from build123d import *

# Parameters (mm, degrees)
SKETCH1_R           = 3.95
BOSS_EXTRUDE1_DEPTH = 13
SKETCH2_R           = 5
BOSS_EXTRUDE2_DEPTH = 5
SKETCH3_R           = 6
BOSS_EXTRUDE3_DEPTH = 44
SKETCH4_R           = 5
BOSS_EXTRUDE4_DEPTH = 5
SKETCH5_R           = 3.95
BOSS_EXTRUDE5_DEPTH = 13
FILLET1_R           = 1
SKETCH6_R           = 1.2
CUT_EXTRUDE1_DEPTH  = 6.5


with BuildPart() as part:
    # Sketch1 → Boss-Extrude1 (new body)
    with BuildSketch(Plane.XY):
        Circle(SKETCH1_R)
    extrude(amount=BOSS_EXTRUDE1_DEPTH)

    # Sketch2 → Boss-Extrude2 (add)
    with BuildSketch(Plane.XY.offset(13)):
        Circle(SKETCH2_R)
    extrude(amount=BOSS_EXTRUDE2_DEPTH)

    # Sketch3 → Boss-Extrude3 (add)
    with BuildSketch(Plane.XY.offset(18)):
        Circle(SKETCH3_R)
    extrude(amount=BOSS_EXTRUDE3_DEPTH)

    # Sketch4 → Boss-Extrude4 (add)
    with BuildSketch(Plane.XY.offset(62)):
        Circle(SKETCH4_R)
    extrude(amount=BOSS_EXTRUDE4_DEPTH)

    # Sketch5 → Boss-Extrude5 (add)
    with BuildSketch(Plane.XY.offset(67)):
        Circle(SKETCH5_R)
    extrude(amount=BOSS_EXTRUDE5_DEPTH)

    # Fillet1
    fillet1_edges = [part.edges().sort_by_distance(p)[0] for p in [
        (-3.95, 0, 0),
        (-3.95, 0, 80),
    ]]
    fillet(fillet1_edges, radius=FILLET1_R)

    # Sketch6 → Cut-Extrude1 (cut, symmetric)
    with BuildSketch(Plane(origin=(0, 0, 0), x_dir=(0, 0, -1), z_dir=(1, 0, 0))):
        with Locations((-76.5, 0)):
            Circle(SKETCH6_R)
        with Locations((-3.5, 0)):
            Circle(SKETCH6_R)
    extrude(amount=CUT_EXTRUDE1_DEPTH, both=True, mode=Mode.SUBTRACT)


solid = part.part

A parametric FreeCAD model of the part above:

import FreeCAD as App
import Part
import Sketcher
Q = App.Units.Quantity


def edges_at(feature, points):
    """Names of the edges that pass closest to the given points."""
    edges = feature.Shape.Edges
    near = lambda p: min(range(len(edges)), key=lambda i: edges[i].distToShape(Part.Vertex(*p))[0])
    return sorted({f"Edge{near(p) + 1}" for p in points})

doc = App.newDocument("Part")
body = doc.addObject("PartDesign::Body", "Body")

sketch1 = doc.addObject("Sketcher::SketchObject", "Sketch")
body.addObject(sketch1)
sketch1.AttachmentSupport = (doc.XY_Plane, [""])
sketch1.MapMode = "FlatFace"
sketch1.addGeometry(Part.Circle(App.Vector(0, 0, 0), App.Vector(0, 0, 1), 4), False)
sketch1.addConstraint(Sketcher.Constraint("Coincident", 0, 3, -1, 1))
sketch1.addConstraint(Sketcher.Constraint("Diameter", 0, Q("7.9 mm")))
pad1 = doc.addObject("PartDesign::Pad", "Pad")
body.addObject(pad1)
pad1.Profile = sketch1
pad1.Length = 13

sketch2 = doc.addObject("Sketcher::SketchObject", "Sketch001")
body.addObject(sketch2)
sketch2.AttachmentSupport = (doc.XY_Plane, [""])
sketch2.MapMode = "FlatFace"
sketch2.AttachmentOffset = App.Placement(App.Vector(0, 0, 13), App.Rotation())
sketch2.addGeometry(Part.Circle(App.Vector(0, 0, 0), App.Vector(0, 0, 1), 5), False)
sketch2.addConstraint(Sketcher.Constraint("Coincident", 0, 3, -1, 1))
sketch2.addConstraint(Sketcher.Constraint("Diameter", 0, Q("10 mm")))
pad2 = doc.addObject("PartDesign::Pad", "Pad001")
body.addObject(pad2)
pad2.Profile = sketch2
pad2.Length = 5

sketch3 = doc.addObject("Sketcher::SketchObject", "Sketch002")
body.addObject(sketch3)
sketch3.AttachmentSupport = (doc.XY_Plane, [""])
sketch3.MapMode = "FlatFace"
sketch3.AttachmentOffset = App.Placement(App.Vector(0, 0, 18), App.Rotation())
sketch3.addGeometry(Part.Circle(App.Vector(0, 0, 0), App.Vector(0, 0, 1), 6), False)
sketch3.addConstraint(Sketcher.Constraint("Coincident", 0, 3, -1, 1))
sketch3.addConstraint(Sketcher.Constraint("Diameter", 0, Q("12 mm")))
pad3 = doc.addObject("PartDesign::Pad", "Pad002")
body.addObject(pad3)
pad3.Profile = sketch3
pad3.Length = 44

sketch4 = doc.addObject("Sketcher::SketchObject", "Sketch003")
body.addObject(sketch4)
sketch4.AttachmentSupport = (doc.XY_Plane, [""])
sketch4.MapMode = "FlatFace"
sketch4.AttachmentOffset = App.Placement(App.Vector(0, 0, 62), App.Rotation())
sketch4.addGeometry(Part.Circle(App.Vector(0, 0, 0), App.Vector(0, 0, 1), 5), False)
sketch4.addConstraint(Sketcher.Constraint("Coincident", 0, 3, -1, 1))
sketch4.addConstraint(Sketcher.Constraint("Diameter", 0, Q("10 mm")))
pad4 = doc.addObject("PartDesign::Pad", "Pad003")
body.addObject(pad4)
pad4.Profile = sketch4
pad4.Length = 5

sketch5 = doc.addObject("Sketcher::SketchObject", "Sketch004")
body.addObject(sketch5)
sketch5.AttachmentSupport = (doc.XY_Plane, [""])
sketch5.MapMode = "FlatFace"
sketch5.AttachmentOffset = App.Placement(App.Vector(0, 0, 67), App.Rotation())
sketch5.addGeometry(Part.Circle(App.Vector(0, 0, 0), App.Vector(0, 0, 1), 4), False)
sketch5.addConstraint(Sketcher.Constraint("Coincident", 0, 3, -1, 1))
sketch5.addConstraint(Sketcher.Constraint("Diameter", 0, Q("7.9 mm")))
pad5 = doc.addObject("PartDesign::Pad", "Pad004")
body.addObject(pad5)
pad5.Profile = sketch5
pad5.Length = 13
doc.recompute()

fillet = doc.addObject("PartDesign::Fillet", "Fillet")
body.addObject(fillet)
fillet.Base = (pad5, edges_at(pad5, [(-3.95, 0, 0), (-3.95, 0, 80)]))
fillet.Radius = 1

sketch6 = doc.addObject("Sketcher::SketchObject", "Sketch005")
body.addObject(sketch6)
sketch6.AttachmentSupport = (doc.YZ_Plane, [""])
sketch6.MapMode = "FlatFace"
sketch6.addGeometry(Part.Circle(App.Vector(0, 76.5, 0), App.Vector(0, 0, 1), 1.2), False)
sketch6.addGeometry(Part.Circle(App.Vector(0, 3.5, 0), App.Vector(0, 0, 1), 1.2), False)
sketch6.addConstraint(Sketcher.Constraint("Equal", 0, 1))
sketch6.addConstraint(Sketcher.Constraint("PointOnObject", 0, 3, -2))
sketch6.addConstraint(Sketcher.Constraint("PointOnObject", 1, 3, -2))
sketch6.addConstraint(Sketcher.Constraint("Diameter", 0, Q("2.4 mm")))
sketch6.addConstraint(Sketcher.Constraint("DistanceY", 1, 3, 0, 3, Q("73 mm")))
sketch6.addConstraint(Sketcher.Constraint("DistanceY", -1, 1, 0, 3, Q("76.5 mm")))
pocket1 = doc.addObject("PartDesign::Pocket", "Pocket")
body.addObject(pocket1)
pocket1.Profile = sketch6
pocket1.Length = 13
pocket1.Midplane = True

doc.recompute()
